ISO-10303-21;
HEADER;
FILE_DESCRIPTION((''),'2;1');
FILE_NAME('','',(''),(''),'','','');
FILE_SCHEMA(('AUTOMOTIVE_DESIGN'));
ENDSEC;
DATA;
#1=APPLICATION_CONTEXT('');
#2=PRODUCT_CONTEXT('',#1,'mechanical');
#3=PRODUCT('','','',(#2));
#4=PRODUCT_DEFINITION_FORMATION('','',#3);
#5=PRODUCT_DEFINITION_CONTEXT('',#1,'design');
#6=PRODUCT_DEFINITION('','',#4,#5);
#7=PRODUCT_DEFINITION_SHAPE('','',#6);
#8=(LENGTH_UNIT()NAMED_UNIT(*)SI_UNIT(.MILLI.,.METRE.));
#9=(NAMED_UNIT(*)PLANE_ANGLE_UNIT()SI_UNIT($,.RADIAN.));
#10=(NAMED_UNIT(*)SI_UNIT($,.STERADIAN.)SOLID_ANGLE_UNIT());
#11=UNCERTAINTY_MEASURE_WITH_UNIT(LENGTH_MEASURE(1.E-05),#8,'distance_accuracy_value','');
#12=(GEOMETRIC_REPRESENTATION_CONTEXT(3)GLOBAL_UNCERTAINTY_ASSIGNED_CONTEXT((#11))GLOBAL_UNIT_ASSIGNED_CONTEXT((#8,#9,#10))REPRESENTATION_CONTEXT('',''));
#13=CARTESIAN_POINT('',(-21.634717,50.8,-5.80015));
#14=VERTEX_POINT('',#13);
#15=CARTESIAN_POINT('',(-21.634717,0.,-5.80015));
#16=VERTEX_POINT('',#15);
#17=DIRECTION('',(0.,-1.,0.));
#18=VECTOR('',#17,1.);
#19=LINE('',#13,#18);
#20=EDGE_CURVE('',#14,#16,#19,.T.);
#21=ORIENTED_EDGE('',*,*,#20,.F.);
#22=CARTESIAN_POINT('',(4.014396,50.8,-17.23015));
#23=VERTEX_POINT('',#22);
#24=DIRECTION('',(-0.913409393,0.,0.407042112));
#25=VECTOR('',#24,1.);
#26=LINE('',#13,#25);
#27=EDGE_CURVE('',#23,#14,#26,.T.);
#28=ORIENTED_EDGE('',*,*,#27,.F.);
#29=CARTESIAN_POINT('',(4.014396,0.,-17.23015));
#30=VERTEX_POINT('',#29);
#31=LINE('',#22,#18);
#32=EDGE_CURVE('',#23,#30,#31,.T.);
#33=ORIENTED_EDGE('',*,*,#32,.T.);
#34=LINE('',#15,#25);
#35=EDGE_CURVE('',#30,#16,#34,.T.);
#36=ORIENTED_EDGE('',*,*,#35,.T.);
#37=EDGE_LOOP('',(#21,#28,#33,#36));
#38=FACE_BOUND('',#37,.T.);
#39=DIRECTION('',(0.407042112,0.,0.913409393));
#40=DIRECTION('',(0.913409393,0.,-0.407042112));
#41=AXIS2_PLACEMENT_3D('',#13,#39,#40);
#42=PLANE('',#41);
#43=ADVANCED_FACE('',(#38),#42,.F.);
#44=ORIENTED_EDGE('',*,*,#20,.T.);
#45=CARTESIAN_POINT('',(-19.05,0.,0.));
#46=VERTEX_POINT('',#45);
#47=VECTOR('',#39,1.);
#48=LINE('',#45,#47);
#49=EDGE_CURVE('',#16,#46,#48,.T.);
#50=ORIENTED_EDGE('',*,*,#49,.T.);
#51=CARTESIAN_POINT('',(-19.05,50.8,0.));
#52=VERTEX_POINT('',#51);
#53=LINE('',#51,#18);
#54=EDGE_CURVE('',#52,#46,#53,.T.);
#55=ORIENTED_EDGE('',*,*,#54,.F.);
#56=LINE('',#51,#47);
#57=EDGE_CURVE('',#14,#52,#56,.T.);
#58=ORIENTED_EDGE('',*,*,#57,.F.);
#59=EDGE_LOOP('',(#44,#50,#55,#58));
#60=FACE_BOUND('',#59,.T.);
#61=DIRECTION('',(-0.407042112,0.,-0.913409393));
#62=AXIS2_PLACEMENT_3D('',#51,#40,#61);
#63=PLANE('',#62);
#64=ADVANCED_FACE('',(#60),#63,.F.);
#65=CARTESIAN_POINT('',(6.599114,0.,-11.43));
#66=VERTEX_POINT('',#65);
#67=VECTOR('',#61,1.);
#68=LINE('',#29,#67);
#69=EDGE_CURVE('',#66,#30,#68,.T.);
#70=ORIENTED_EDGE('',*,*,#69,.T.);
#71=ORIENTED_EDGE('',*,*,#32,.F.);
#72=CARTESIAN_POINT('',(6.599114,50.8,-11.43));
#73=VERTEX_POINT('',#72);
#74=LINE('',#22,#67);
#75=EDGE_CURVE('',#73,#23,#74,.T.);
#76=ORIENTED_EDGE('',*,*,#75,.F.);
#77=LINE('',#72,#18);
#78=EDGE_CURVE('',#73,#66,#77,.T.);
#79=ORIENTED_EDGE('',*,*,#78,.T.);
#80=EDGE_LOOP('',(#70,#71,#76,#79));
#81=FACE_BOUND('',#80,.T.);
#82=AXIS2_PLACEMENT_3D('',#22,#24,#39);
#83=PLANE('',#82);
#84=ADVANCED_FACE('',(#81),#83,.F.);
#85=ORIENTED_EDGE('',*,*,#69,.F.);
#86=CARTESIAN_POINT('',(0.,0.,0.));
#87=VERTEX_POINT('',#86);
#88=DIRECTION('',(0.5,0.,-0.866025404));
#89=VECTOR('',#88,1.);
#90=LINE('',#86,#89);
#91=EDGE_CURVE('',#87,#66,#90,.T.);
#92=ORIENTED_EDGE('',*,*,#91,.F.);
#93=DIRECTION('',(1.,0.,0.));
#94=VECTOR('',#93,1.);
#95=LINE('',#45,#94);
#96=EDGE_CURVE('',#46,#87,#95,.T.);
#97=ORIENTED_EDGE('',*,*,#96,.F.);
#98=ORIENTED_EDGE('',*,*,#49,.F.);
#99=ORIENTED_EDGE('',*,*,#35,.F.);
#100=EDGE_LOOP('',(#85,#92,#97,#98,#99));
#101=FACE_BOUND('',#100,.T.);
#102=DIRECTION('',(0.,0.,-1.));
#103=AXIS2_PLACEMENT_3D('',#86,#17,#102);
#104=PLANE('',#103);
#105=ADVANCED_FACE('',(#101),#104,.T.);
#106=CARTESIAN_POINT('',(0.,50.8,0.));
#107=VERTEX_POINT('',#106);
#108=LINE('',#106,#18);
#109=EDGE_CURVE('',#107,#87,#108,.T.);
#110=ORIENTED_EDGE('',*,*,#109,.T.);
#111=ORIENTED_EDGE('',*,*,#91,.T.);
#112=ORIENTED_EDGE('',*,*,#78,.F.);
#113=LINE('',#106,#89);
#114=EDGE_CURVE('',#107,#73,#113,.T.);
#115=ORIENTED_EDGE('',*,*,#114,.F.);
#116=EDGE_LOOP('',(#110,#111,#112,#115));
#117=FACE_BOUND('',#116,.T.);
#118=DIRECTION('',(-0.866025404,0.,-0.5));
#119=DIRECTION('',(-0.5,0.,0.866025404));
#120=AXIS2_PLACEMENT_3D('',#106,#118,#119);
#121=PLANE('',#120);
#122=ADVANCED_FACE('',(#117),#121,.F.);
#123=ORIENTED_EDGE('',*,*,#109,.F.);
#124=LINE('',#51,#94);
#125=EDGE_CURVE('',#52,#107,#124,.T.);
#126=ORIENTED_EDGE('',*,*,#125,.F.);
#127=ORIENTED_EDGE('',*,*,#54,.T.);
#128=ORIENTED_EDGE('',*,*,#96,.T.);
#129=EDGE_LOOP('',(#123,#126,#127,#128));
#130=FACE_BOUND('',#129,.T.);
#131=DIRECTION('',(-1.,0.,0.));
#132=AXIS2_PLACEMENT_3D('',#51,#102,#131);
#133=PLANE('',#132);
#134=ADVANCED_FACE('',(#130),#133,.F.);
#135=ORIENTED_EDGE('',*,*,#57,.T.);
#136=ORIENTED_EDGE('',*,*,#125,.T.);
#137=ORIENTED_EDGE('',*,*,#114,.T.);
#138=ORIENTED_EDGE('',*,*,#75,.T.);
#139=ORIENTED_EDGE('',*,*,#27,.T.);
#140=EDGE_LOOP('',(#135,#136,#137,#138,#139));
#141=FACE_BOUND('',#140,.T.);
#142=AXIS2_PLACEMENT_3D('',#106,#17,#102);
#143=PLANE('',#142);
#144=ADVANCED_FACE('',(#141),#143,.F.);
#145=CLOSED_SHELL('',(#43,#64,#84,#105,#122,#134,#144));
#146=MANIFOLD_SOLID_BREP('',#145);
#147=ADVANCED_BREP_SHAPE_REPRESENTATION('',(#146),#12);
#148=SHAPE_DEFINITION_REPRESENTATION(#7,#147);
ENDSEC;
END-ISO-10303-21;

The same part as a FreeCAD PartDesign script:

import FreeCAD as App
import Part
import Sketcher

V = App.Vector
Q = App.Units.Quantity


def add_polygon(sketch, points):
    """Adds a closed chain of lines whose ends are joined by coincident constraints."""
    first, n = sketch.GeometryCount, len(points)
    for a, b in zip(points, points[1:] + points[:1]):
        sketch.addGeometry(Part.LineSegment(App.Vector(*a, 0), App.Vector(*b, 0)), False)
    for i in range(n):
        sketch.addConstraint(Sketcher.Constraint("Coincident", first + i, 2, first + (i + 1) % n, 1))

doc = App.newDocument("Part")
body = doc.addObject("PartDesign::Body", "Body")

# Sketch on XZ plane
sketch1 = body.newObject("Sketcher::SketchObject", "Sketch")
sketch1.AttachmentSupport = (doc.getObject("XZ_Plane"), [""])
sketch1.MapMode = "FlatFace"
add_polygon(sketch1, [(-19, 0), (0, 0), (7, -11), (4, -17), (-22, -6)])  # lines 0-4
sketch1.addConstraint(Sketcher.Constraint("Horizontal", 0))
sketch1.addConstraint(Sketcher.Constraint("Coincident", 0, 2, -1, 1))
sketch1.addConstraint(Sketcher.Constraint("Perpendicular", 2, 3))
sketch1.addConstraint(Sketcher.Constraint("Perpendicular", 3, 4))
sketch1.addConstraint(Sketcher.Constraint("Equal", 2, 4))
sketch1.addConstraint(Sketcher.Constraint("Angle", 1, Q("-60 deg")))
sketch1.addConstraint(Sketcher.Constraint("DistanceX", 0, 1, 0, 2, Q("0.75 in")))
sketch1.addConstraint(Sketcher.Constraint("Distance", 2, Q("0.25 in")))
sketch1.addConstraint(Sketcher.Constraint("DistanceY", 1, 2, -1, 1, Q("0.45 in")))
pad1 = body.newObject("PartDesign::Pad", "Pad")
pad1.Profile = sketch1
pad1.Length = Q("2 in")
pad1.Reversed = True

doc.recompute()
